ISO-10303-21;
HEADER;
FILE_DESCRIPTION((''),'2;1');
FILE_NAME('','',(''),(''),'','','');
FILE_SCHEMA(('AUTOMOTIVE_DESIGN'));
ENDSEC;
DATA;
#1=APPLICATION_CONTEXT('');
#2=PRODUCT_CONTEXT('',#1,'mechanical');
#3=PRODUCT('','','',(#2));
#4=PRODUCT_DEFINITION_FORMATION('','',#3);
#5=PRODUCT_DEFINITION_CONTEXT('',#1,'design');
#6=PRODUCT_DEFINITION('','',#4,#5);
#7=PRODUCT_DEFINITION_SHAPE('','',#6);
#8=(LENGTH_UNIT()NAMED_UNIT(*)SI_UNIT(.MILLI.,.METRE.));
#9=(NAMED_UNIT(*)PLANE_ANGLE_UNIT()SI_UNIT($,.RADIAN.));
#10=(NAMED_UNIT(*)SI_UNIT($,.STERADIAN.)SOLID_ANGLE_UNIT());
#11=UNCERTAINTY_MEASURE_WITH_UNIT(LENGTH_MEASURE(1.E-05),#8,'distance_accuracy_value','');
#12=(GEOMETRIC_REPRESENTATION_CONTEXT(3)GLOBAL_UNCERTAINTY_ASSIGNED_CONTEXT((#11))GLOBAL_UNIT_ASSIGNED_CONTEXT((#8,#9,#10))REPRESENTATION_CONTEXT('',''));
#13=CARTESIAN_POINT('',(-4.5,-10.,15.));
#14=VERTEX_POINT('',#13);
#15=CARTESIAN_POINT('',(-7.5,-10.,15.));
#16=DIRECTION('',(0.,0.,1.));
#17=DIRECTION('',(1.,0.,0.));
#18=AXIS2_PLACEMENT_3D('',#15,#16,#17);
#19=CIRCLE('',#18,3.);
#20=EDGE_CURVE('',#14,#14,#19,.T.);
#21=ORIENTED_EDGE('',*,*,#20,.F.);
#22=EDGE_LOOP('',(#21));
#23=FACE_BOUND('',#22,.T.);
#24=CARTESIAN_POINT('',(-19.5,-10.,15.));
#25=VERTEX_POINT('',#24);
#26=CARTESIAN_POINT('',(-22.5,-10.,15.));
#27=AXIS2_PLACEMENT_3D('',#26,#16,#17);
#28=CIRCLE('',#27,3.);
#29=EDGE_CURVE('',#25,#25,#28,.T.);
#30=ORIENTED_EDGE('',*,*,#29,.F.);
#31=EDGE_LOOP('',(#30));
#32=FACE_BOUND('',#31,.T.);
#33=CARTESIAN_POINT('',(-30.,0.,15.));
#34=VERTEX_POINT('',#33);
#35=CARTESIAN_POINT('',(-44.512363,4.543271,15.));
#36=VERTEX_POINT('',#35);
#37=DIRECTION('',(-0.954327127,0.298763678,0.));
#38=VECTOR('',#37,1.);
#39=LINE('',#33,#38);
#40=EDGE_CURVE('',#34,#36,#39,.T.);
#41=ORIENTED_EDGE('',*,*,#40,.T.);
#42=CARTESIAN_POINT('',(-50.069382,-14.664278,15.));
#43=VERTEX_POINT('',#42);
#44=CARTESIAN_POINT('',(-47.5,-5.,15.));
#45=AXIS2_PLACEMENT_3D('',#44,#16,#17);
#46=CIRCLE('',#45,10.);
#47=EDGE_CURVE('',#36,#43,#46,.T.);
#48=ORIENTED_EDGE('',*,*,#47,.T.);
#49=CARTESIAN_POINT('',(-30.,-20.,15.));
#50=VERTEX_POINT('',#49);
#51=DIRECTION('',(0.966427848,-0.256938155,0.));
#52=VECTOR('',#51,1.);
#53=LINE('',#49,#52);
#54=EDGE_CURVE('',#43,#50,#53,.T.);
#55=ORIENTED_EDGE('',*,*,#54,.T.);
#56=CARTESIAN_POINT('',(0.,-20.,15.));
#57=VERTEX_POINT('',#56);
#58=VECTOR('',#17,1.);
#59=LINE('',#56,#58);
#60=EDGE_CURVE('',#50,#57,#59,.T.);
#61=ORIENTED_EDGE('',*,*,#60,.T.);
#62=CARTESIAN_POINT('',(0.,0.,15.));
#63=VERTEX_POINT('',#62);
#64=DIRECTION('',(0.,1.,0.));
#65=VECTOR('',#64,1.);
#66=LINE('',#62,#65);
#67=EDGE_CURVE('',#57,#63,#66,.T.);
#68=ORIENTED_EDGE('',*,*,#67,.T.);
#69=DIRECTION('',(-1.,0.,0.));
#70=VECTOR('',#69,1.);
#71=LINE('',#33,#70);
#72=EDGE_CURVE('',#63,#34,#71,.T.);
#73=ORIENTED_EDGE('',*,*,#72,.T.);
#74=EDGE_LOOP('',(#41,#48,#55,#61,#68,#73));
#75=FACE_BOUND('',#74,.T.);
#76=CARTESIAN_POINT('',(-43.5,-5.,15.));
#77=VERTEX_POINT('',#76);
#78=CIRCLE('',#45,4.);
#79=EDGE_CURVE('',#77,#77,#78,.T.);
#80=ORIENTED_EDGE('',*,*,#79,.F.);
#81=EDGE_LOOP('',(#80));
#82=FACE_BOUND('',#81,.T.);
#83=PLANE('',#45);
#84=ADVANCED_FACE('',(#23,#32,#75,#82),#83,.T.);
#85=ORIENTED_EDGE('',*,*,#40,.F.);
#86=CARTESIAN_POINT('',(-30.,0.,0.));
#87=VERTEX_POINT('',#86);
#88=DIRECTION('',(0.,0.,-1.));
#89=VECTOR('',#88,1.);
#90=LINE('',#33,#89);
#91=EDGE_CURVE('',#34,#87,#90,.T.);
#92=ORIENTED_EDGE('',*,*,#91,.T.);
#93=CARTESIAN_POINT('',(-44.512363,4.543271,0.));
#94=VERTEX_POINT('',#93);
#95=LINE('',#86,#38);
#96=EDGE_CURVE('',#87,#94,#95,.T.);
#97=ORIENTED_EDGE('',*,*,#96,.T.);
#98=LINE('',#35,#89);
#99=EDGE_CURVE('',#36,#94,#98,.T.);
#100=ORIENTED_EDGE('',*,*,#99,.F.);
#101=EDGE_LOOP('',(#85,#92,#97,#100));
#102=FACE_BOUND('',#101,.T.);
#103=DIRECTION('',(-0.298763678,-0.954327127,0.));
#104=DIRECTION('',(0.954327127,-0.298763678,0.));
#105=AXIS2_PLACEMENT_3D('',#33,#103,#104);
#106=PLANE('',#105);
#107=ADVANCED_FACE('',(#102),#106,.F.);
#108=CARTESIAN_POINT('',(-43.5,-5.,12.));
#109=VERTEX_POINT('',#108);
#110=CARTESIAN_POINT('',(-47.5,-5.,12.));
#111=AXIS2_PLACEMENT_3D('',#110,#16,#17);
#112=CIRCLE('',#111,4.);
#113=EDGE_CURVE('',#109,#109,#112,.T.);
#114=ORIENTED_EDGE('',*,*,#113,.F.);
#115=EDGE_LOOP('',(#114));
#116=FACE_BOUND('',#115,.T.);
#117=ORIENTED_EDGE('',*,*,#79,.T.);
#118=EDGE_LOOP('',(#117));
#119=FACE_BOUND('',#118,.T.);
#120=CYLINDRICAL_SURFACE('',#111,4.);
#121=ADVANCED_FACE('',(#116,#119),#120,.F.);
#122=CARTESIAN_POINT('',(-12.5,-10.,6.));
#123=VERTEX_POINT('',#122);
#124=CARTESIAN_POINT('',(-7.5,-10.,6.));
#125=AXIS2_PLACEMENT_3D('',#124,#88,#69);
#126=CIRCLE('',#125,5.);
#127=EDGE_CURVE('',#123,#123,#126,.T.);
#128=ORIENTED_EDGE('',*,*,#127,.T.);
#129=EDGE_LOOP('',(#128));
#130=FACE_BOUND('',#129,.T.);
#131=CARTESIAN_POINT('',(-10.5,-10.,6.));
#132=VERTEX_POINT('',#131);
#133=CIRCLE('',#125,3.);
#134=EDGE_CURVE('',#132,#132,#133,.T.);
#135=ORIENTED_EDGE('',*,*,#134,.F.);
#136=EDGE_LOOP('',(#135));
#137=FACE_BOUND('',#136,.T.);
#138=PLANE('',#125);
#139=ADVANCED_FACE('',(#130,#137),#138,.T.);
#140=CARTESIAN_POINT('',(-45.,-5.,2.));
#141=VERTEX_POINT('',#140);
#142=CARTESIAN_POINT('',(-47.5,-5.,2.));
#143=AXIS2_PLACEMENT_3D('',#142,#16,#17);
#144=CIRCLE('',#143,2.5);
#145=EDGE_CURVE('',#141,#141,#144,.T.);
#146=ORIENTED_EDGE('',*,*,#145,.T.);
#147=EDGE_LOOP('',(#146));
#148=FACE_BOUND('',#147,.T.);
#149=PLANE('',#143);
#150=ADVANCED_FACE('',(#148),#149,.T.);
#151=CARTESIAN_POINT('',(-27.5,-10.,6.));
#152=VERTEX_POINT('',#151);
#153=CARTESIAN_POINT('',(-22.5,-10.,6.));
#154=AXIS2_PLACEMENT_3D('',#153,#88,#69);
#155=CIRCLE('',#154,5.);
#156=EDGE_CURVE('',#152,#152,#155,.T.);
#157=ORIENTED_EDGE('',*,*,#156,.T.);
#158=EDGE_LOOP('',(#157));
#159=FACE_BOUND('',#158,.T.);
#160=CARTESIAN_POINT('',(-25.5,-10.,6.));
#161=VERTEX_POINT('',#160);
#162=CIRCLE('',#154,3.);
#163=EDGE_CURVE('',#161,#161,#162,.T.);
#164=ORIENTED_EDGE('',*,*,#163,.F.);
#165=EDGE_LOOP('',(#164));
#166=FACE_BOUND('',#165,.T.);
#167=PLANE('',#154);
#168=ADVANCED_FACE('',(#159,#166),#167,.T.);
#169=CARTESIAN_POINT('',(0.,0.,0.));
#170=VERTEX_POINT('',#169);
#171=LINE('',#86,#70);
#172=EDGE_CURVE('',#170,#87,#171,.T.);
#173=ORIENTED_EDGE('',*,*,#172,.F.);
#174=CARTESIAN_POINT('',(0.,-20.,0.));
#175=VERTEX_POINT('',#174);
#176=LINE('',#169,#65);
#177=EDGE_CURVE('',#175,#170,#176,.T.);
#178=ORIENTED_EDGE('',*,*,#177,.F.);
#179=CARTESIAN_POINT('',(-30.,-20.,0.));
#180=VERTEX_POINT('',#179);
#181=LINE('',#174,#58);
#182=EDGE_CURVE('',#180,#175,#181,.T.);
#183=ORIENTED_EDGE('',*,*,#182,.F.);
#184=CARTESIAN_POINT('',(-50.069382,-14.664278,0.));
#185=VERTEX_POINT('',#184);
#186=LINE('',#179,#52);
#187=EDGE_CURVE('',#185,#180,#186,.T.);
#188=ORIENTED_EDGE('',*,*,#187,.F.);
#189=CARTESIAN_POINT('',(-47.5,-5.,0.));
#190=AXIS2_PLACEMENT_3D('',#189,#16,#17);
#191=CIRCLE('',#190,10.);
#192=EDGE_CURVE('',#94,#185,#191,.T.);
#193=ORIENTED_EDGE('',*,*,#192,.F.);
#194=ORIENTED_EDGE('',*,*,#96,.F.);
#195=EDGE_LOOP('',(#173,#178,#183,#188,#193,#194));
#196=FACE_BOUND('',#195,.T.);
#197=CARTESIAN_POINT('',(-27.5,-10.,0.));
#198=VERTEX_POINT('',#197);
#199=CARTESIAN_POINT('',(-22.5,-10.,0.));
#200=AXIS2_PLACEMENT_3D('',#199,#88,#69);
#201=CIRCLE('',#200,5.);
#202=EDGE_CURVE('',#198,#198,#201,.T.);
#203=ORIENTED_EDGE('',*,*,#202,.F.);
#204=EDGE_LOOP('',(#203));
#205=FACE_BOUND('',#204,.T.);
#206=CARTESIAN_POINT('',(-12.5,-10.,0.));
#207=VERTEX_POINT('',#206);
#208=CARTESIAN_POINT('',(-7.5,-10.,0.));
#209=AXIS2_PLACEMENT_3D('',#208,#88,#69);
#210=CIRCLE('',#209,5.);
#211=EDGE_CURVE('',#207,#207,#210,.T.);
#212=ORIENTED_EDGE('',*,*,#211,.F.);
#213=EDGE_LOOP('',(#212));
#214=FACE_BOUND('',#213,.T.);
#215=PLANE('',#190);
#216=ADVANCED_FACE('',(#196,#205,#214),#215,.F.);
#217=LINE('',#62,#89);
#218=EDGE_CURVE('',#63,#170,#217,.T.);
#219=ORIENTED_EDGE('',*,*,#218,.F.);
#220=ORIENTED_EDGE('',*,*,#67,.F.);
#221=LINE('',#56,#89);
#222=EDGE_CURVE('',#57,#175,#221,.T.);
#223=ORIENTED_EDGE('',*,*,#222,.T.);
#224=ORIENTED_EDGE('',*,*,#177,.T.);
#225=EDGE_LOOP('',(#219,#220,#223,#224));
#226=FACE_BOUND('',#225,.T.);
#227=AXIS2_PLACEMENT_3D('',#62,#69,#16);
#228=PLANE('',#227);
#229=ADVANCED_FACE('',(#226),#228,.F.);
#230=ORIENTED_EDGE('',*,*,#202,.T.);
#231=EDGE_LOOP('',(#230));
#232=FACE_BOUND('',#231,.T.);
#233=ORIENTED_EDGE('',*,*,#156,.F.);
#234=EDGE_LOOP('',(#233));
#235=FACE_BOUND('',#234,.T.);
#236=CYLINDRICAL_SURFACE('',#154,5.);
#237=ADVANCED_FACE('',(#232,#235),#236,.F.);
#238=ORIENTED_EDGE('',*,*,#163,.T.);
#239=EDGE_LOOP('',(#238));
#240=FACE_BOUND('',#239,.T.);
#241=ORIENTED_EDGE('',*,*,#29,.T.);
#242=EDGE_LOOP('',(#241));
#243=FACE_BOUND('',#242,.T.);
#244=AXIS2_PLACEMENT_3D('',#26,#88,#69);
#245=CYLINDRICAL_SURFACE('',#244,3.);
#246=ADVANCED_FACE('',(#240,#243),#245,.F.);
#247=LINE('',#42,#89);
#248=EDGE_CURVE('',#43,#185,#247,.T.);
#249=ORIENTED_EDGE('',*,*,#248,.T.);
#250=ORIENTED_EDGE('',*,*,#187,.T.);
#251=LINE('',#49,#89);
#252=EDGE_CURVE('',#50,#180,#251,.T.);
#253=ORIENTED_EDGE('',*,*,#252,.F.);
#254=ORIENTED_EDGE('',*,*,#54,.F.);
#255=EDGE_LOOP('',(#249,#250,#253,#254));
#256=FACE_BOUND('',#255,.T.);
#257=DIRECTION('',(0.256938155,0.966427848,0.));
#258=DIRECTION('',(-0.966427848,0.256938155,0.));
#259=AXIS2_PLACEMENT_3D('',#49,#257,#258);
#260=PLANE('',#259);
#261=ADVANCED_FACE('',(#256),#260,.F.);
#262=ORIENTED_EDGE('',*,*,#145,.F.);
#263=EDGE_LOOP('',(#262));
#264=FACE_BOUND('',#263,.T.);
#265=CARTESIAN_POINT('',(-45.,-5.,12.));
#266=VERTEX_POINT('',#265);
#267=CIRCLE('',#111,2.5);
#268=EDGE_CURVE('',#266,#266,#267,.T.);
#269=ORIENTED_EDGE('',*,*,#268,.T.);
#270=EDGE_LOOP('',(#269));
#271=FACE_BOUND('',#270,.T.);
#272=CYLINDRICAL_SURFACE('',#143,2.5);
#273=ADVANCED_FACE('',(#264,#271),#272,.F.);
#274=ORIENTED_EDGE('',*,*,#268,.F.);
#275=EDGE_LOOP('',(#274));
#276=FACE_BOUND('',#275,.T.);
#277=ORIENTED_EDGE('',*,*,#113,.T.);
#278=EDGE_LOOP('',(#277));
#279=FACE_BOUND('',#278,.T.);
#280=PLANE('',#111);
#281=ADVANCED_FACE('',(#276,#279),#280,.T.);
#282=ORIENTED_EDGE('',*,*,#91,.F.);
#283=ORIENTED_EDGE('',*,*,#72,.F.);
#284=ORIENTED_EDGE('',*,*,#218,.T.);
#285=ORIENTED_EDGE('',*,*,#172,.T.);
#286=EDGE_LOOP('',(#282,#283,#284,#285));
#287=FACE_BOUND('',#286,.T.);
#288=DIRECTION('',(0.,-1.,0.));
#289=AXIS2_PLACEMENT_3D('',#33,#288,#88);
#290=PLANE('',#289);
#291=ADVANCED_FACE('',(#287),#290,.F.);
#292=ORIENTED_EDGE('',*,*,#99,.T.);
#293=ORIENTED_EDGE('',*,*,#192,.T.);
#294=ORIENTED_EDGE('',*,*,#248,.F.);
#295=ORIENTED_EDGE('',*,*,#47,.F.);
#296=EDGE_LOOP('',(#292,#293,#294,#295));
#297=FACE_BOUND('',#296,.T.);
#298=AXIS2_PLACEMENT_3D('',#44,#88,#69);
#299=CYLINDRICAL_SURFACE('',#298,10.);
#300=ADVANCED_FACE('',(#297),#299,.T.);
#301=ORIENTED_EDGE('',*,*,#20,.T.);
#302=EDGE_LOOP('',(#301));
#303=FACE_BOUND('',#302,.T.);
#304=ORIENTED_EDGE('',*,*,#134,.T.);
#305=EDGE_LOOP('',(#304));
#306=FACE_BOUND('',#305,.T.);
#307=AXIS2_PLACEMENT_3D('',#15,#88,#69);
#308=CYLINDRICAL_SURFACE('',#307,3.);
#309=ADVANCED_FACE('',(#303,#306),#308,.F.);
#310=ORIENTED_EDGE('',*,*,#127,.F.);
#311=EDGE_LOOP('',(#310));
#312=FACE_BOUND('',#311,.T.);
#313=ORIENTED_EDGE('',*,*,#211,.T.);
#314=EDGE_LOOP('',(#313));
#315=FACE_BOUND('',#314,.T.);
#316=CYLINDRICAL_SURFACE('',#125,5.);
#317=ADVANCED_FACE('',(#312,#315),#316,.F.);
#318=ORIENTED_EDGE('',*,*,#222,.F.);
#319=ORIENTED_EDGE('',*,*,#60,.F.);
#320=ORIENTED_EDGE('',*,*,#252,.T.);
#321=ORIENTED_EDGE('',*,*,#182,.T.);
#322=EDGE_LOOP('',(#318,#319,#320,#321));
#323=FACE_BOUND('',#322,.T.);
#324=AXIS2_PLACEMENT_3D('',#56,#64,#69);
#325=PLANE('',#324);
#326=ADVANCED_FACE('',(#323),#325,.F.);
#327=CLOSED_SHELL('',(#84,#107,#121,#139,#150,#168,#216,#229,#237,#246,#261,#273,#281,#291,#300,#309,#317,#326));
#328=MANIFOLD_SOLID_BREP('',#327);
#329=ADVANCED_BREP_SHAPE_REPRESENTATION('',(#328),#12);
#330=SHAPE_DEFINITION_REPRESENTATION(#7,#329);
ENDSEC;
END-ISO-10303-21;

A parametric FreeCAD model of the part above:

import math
import FreeCAD as App
import Part
import Sketcher

V = App.Vector

doc = App.newDocument("Part")
body = doc.addObject("PartDesign::Body", "Body")

sketch1 = doc.addObject("Sketcher::SketchObject", "Sketch")
body.addObject(sketch1)
sketch1.AttachmentSupport = (doc.XY_Plane, [""])
sketch1.MapMode = "FlatFace"
sketch1.addGeometry(Part.LineSegment(V(0, 0, 0), V(-30, 0, 0)), False)
sketch1.addGeometry(Part.LineSegment(V(-30, 0, 0), V(-44.5, 4.5, 0)), False)
sketch1.addGeometry(Part.ArcOfCircle(Part.Circle(V(-47.5, -5, 0), V(0, 0, 1), 10), math.radians(73), math.radians(255)), False)
sketch1.addGeometry(Part.LineSegment(V(-50.1, -14.7, 0), V(-30, -20, 0)), False)
sketch1.addGeometry(Part.LineSegment(V(-30, -20, 0), V(0, -20, 0)), False)
sketch1.addGeometry(Part.LineSegment(V(0, -20, 0), V(0, 0, 0)), False)
sketch1.addGeometry(Part.Circle(V(-7.5, -10, 0), V(0, 0, 1), 3), False)
sketch1.addGeometry(Part.Circle(V(-22.5, -10, 0), V(0, 0, 1), 3), False)
sketch1.addConstraint(Sketcher.Constraint("Coincident", 0, 2, 1, 1))
sketch1.addConstraint(Sketcher.Constraint("Tangent", 1, 2, 2, 1))
sketch1.addConstraint(Sketcher.Constraint("Tangent", 2, 2, 3, 1))
sketch1.addConstraint(Sketcher.Constraint("Coincident", 3, 2, 4, 1))
sketch1.addConstraint(Sketcher.Constraint("Coincident", 4, 2, 5, 1))
sketch1.addConstraint(Sketcher.Constraint("Coincident", 5, 2, 0, 1))
sketch1.addConstraint(Sketcher.Constraint("Horizontal", 0))
sketch1.addConstraint(Sketcher.Constraint("Horizontal", 4))
sketch1.addConstraint(Sketcher.Constraint("Vertical", 5))
sketch1.addConstraint(Sketcher.Constraint("Coincident", 5, 2, -1, 1))
sketch1.addConstraint(Sketcher.Constraint("Equal", 6, 7))
sketch1.addConstraint(Sketcher.Constraint("Horizontal", 6, 3, 7, 3))
sketch1.addConstraint(Sketcher.Constraint("Vertical", 0, 2, 3, 2))
sketch1.addConstraint(Sketcher.Constraint("Diameter", 6, 6.0))
sketch1.addConstraint(Sketcher.Constraint("Radius", 2, 10.0))
sketch1.addConstraint(Sketcher.Constraint("DistanceX", 0, 2, 0, 1, 30.0))
sketch1.addConstraint(Sketcher.Constraint("DistanceY", 5, 1, 5, 2, 20.0))
sketch1.addConstraint(Sketcher.Constraint("DistanceY", 2, 3, -1, 1, 5.0))
sketch1.addConstraint(Sketcher.Constraint("DistanceY", 6, 3, -1, 1, 10.0))
sketch1.addConstraint(Sketcher.Constraint("DistanceX", 2, 3, 6, 3, 40.0))
sketch1.addConstraint(Sketcher.Constraint("DistanceX", 7, 3, 6, 3, 15.0))
sketch1.addConstraint(Sketcher.Constraint("DistanceX", 2, 3, -1, 1, 47.5))
pad1 = doc.addObject("PartDesign::Pad", "Pad")
body.addObject(pad1)
pad1.Profile = sketch1
pad1.Length = 15

sketch2 = doc.addObject("Sketcher::SketchObject", "Sketch001")
body.addObject(sketch2)
sketch2.AttachmentSupport = (doc.XY_Plane, [""])
sketch2.MapMode = "FlatFace"
sketch2.addGeometry(Part.Circle(V(-8, -10, 0), V(0, 0, 1), 5), False)
sketch2.addGeometry(Part.Circle(V(-22, -10, 0), V(0, 0, 1), 5), False)
sketch2.addConstraint(Sketcher.Constraint("Equal", 0, 1))
sketch2.addConstraint(Sketcher.Constraint("Horizontal", 0, 3, 1, 3))
sketch2.addConstraint(Sketcher.Constraint("Diameter", 0, 10.0))
sketch2.addConstraint(Sketcher.Constraint("DistanceY", 0, 3, -1, 1, 10.0))
sketch2.addConstraint(Sketcher.Constraint("DistanceX", 1, 3, 0, 3, 15.0))
sketch2.addConstraint(Sketcher.Constraint("DistanceX", 0, 3, -1, 1, 7.5))
pocket1 = doc.addObject("PartDesign::Pocket", "Pocket")
body.addObject(pocket1)
pocket1.Profile = sketch2
pocket1.Length = 6
pocket1.Reversed = True

sketch3 = doc.addObject("Sketcher::SketchObject", "Sketch002")
body.addObject(sketch3)
sketch3.AttachmentSupport = (doc.XY_Plane, [""])
sketch3.MapMode = "FlatFace"
sketch3.AttachmentOffset = App.Placement(V(0, 0, 15), App.Rotation())
sketch3.addGeometry(Part.Circle(V(-47.5, -5, 0), V(0, 0, 1), 4), False)
sketch3.addConstraint(Sketcher.Constraint("Diameter", 0, 8.0))
sketch3.addConstraint(Sketcher.Constraint("DistanceY", 0, 3, -1, 1, 5.0))
sketch3.addConstraint(Sketcher.Constraint("DistanceX", 0, 3, -1, 1, 47.5))
pocket2 = doc.addObject("PartDesign::Pocket", "Pocket001")
body.addObject(pocket2)
pocket2.Profile = sketch3
pocket2.Length = 3

sketch4 = doc.addObject("Sketcher::SketchObject", "Sketch003")
body.addObject(sketch4)
sketch4.AttachmentSupport = (doc.XY_Plane, [""])
sketch4.MapMode = "FlatFace"
sketch4.AttachmentOffset = App.Placement(V(0, 0, 12), App.Rotation())
sketch4.addGeometry(Part.Circle(V(-47.5, -5, 0), V(0, 0, 1), 2.5), False)
sketch4.addConstraint(Sketcher.Constraint("Diameter", 0, 5.0))
sketch4.addConstraint(Sketcher.Constraint("DistanceY", 0, 3, -1, 1, 5.0))
sketch4.addConstraint(Sketcher.Constraint("DistanceX", 0, 3, -1, 1, 47.5))
pocket3 = doc.addObject("PartDesign::Pocket", "Pocket002")
body.addObject(pocket3)
pocket3.Profile = sketch4
pocket3.Length = 10

doc.recompute()
